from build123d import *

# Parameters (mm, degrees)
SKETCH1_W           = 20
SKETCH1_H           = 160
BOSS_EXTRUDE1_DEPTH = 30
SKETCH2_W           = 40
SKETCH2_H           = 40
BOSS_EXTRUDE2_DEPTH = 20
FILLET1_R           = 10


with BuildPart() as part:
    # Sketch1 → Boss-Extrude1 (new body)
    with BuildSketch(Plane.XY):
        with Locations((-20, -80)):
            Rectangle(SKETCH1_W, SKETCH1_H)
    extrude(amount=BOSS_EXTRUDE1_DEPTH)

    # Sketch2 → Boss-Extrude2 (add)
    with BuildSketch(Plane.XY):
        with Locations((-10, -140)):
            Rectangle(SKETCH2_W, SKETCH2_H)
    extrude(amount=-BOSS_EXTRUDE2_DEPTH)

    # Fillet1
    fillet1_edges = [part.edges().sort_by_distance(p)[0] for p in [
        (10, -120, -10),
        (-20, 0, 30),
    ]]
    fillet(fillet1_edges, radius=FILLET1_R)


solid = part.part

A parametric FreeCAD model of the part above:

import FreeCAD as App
import Part
import Sketcher
from FreeCAD import Vector


def edges_at(feature, points):
    """Names of the edges that pass closest to the given points."""
    edges = feature.Shape.Edges
    near = lambda p: min(range(len(edges)), key=lambda i: edges[i].distToShape(Part.Vertex(*p))[0])
    return sorted({f"Edge{near(p) + 1}" for p in points})


def add_polygon(sketch, points):
    """Adds a closed chain of lines whose ends are joined by coincident constraints."""
    first, n = sketch.GeometryCount, len(points)
    for a, b in zip(points, points[1:] + points[:1]):
        sketch.addGeometry(Part.LineSegment(App.Vector(*a, 0), App.Vector(*b, 0)), False)
    for i in range(n):
        sketch.addConstraint(Sketcher.Constraint("Coincident", first + i, 2, first + (i + 1) % n, 1))

doc = App.newDocument("Part")
params = doc.addObject("Spreadsheet::Sheet", "Params")
for row, (alias, value) in enumerate([
    ("sketch1_width", "20 mm"),
    ("sketch1_height", "160 mm"),
    ("pad1_length", "30 mm"),
    ("sketch2_width", "40 mm"),
    ("pad2_length", "20 mm"),
    ("fillet_radius", "10 mm"),
], start=1):
    params.set(f"A{row}", alias)
    params.set(f"B{row}", "=" + value)
    params.setAlias(f"B{row}", alias)

body = doc.addObject("PartDesign::Body", "Body")

# Sketch on XY plane
sketch1 = body.newObject("Sketcher::SketchObject", "Sketch")
sketch1.AttachmentSupport = (doc.getObject("XY_Plane"), [""])
sketch1.MapMode = "FlatFace"
add_polygon(sketch1, [(-30, 0), (-30, -160), (-10, -160), (-10, 0)])  # lines 0-3
sketch1.addConstraint([
    Sketcher.Constraint("Vertical", 0),
    Sketcher.Constraint("Horizontal", 1),
    Sketcher.Constraint("Vertical", 2),
    Sketcher.Constraint("Horizontal", 3),
    Sketcher.Constraint("PointOnObject", 2, 2, -1),
    Sketcher.Constraint("DistanceX", 1, 1, 1, 2, 20.0),
    Sketcher.Constraint("DistanceY", 0, 2, 0, 1, 160.0),
    Sketcher.Constraint("DistanceX", 0, 2, -1, 1, 30.0),
])
sketch1.setExpression("Constraints[9]", "Params.sketch1_width")
sketch1.setExpression("Constraints[10]", "Params.sketch1_height")
pad1 = body.newObject("PartDesign::Pad", "Pad")
pad1.Profile = sketch1
pad1.setExpression("Length", "Params.pad1_length")

# Sketch on XY plane
sketch2 = body.newObject("Sketcher::SketchObject", "Sketch001")
sketch2.AttachmentSupport = (doc.getObject("XY_Plane"), [""])
sketch2.MapMode = "FlatFace"
add_polygon(sketch2, [(-30, -120), (-30, -160), (10, -160), (10, -120)])  # lines 0-3
sketch2.addConstraint([
    Sketcher.Constraint("Vertical", 0),
    Sketcher.Constraint("Horizontal", 1),
    Sketcher.Constraint("Vertical", 2),
    Sketcher.Constraint("Horizontal", 3),
    Sketcher.Constraint("Equal", 3, 0),
    Sketcher.Constraint("DistanceX", 1, 1, 1, 2, 40.0),
    Sketcher.Constraint("DistanceX", 0, 2, -1, 1, 30.0),
    Sketcher.Constraint("DistanceY", 0, 2, -1, 1, 160.0),
])
sketch2.setExpression("Constraints[9]", "Params.sketch2_width")
pad2 = body.newObject("PartDesign::Pad", "Pad001")
pad2.Profile = sketch2
pad2.setExpression("Length", "Params.pad2_length")
pad2.Reversed = True
doc.recompute()

fillet = body.newObject("PartDesign::Fillet", "Fillet")
fillet.Base = (pad2, edges_at(pad2, [(10, -120, -10), (-20, 0, 30)]))
fillet.setExpression("Radius", "Params.fillet_radius")

doc.recompute()
